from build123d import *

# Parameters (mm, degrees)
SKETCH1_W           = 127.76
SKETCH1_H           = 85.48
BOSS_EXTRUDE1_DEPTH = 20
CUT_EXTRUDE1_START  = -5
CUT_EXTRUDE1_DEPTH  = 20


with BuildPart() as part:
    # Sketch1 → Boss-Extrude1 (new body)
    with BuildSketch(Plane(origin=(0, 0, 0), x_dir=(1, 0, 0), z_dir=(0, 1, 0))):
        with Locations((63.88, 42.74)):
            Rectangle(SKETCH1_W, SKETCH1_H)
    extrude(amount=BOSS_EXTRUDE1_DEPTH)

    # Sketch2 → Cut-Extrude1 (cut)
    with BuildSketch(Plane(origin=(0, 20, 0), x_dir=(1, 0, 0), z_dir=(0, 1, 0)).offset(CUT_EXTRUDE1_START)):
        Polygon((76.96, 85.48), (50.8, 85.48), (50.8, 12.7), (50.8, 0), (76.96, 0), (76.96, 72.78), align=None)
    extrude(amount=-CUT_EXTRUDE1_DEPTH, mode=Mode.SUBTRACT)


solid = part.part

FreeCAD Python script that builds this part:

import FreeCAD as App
import Part
import Sketcher

V = App.Vector
Q = App.Units.Quantity

doc = App.newDocument("Part")
body = doc.addObject("PartDesign::Body", "Body")

# Sketch on XZ plane
sketch1 = body.newObject("Sketcher::SketchObject", "Sketch")
sketch1.AttachmentSupport = (doc.getObject("XZ_Plane"), [""])
sketch1.MapMode = "FlatFace"
sketch1.addGeometry(Part.LineSegment(V(0, -85, 0), V(0, 0, 0)), False)
sketch1.addGeometry(Part.LineSegment(V(0, 0, 0), V(128, 0, 0)), False)
sketch1.addGeometry(Part.LineSegment(V(128, 0, 0), V(128, -85, 0)), False)
sketch1.addGeometry(Part.LineSegment(V(128, -85, 0), V(0, -85, 0)), False)
sketch1.addConstraint(Sketcher.Constraint("Coincident", 0, 2, 1, 1))
sketch1.addConstraint(Sketcher.Constraint("Coincident", 1, 2, 2, 1))
sketch1.addConstraint(Sketcher.Constraint("Coincident", 2, 2, 3, 1))
sketch1.addConstraint(Sketcher.Constraint("Coincident", 3, 2, 0, 1))
sketch1.addConstraint(Sketcher.Constraint("Vertical", 0))
sketch1.addConstraint(Sketcher.Constraint("Horizontal", 1))
sketch1.addConstraint(Sketcher.Constraint("Vertical", 2))
sketch1.addConstraint(Sketcher.Constraint("Horizontal", 3))
sketch1.addConstraint(Sketcher.Constraint("Coincident", 0, 2, -1, 1))
sketch1.addConstraint(Sketcher.Constraint("DistanceX", 1, 1, 1, 2, Q("127.76 mm")))
sketch1.addConstraint(Sketcher.Constraint("DistanceY", 0, 1, 0, 2, Q("85.48 mm")))
pad1 = body.newObject("PartDesign::Pad", "Pad")
pad1.Profile = sketch1
pad1.Length = 20
pad1.Reversed = True

# Sketch on XZ plane
sketch2 = body.newObject("Sketcher::SketchObject", "Sketch001")
sketch2.AttachmentSupport = (doc.getObject("XZ_Plane"), [""])
sketch2.MapMode = "FlatFace"
sketch2.AttachmentOffset = App.Placement(V(0, 0, -15), App.Rotation())
sketch2.addGeometry(Part.LineSegment(V(77, -85, 0), V(51, -85, 0)), False)
sketch2.addGeometry(Part.LineSegment(V(51, -85, 0), V(51, 0, 0)), False)
sketch2.addGeometry(Part.LineSegment(V(51, 0, 0), V(77, 0, 0)), False)
sketch2.addGeometry(Part.LineSegment(V(77, 0, 0), V(77, -85, 0)), False)
sketch2.addConstraint(Sketcher.Constraint("Coincident", 0, 2, 1, 1))
sketch2.addConstraint(Sketcher.Constraint("Coincident", 1, 2, 2, 1))
sketch2.addConstraint(Sketcher.Constraint("Coincident", 2, 2, 3, 1))
sketch2.addConstraint(Sketcher.Constraint("Coincident", 3, 2, 0, 1))
sketch2.addConstraint(Sketcher.Constraint("Horizontal", 0))
sketch2.addConstraint(Sketcher.Constraint("Vertical", 1))
sketch2.addConstraint(Sketcher.Constraint("Horizontal", 2))
sketch2.addConstraint(Sketcher.Constraint("Vertical", 3))
sketch2.addConstraint(Sketcher.Constraint("PointOnObject", 1, 2, -1))
sketch2.addConstraint(Sketcher.Constraint("DistanceX", 0, 2, 0, 1, Q("26.16 mm")))
sketch2.addConstraint(Sketcher.Constraint("DistanceY", 1, 1, 1, 2, Q("85.48 mm")))
sketch2.addConstraint(Sketcher.Constraint("DistanceX", -1, 1, 0, 2, Q("50.8 mm")))
pocket1 = body.newObject("PartDesign::Pocket", "Pocket")
pocket1.Profile = sketch2
pocket1.Length = 20
pocket1.Reversed = True

doc.recompute()
